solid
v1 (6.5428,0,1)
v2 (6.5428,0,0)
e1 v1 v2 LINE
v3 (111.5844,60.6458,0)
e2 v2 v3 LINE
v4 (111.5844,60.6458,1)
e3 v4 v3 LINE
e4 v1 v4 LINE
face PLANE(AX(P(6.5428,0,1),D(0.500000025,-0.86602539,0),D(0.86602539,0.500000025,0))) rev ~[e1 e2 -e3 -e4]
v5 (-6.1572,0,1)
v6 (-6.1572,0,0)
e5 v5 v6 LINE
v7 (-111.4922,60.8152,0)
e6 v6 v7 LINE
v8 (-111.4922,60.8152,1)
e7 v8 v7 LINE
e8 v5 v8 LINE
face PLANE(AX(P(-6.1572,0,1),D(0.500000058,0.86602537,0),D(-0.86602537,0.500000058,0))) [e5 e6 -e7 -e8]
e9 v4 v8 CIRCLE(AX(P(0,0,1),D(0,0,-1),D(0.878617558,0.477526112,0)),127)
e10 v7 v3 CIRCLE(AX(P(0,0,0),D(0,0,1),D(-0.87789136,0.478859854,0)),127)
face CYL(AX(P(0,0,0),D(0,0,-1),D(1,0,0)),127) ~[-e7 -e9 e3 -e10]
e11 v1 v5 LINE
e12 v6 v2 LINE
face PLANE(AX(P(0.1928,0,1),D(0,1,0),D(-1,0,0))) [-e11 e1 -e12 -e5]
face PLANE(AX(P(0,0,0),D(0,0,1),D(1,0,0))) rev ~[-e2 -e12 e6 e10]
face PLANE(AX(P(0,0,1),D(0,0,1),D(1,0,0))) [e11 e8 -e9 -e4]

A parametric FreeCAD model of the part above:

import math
import FreeCAD as App
import Part
import Sketcher
Q = App.Units.Quantity

doc = App.newDocument("Part")
body = doc.addObject("PartDesign::Body", "Body")

sketch1 = body.newObject("Sketcher::SketchObject", "Sketch")
sketch1.AttachmentSupport = (doc.getObject("XY_Plane"), [""])
sketch1.MapMode = "FlatFace"
sketch1.addGeometry(Part.Circle(App.Vector(0, 0, 0), App.Vector(0, 0, 1), 127), False)
sketch1.addConstraint([
    Sketcher.Constraint("Coincident", 0, 3, -1, 1),
    Sketcher.Constraint("Diameter", 0, Q("10 in")),
])
pad1 = body.newObject("PartDesign::Pad", "Pad")
pad1.Profile = sketch1
pad1.Length = 1

sketch2 = body.newObject("Sketcher::SketchObject", "Sketch001")
sketch2.AttachmentSupport = (doc.getObject("XY_Plane"), [""])
sketch2.MapMode = "FlatFace"
sketch2.AttachmentOffset = App.Placement(App.Vector(0, 0, 1), App.Rotation())
sketch2.addGeometry([
    Part.LineSegment(App.Vector(6.5428, 0, 0), App.Vector(111.5844, 60.6458, 0)),
    Part.ArcOfCircle(Part.Circle(App.Vector(0, 0, 0), App.Vector(0, 0, 1), 127), math.radians(28.523953), math.radians(151.389036)),
    Part.LineSegment(App.Vector(-111.4922, 60.8152, 0), App.Vector(-6.1572, 0, 0)),
    Part.LineSegment(App.Vector(-6.1572, 0, 0), App.Vector(6.5428, 0, 0)),
], False)
sketch2.addConstraint([
    Sketcher.Constraint("Coincident", 0, 2, 1, 1),
    Sketcher.Constraint("Coincident", 1, 2, 2, 1),
    Sketcher.Constraint("Coincident", 2, 2, 3, 1),
    Sketcher.Constraint("Coincident", 3, 2, 0, 1),
    Sketcher.Constraint("Horizontal", 3),
    Sketcher.Constraint("Coincident", 1, 3, -1, 1),
    Sketcher.Constraint("PointOnObject", 2, 2, -1),
    Sketcher.Constraint("DistanceX", 3, 1, 3, 2, Q("0.5 in")),
    Sketcher.Constraint("Angle", 0, Q("30 deg")),
    Sketcher.Constraint("Angle", 2, Q("-30 deg")),
    Sketcher.Constraint("Radius", 1, Q("5 in")),
    Sketcher.Constraint("Distance", 2, Q("4.7886 in")),
])
pocket1 = body.newObject("PartDesign::Pocket", "Pocket")
pocket1.Profile = sketch2
pocket1.Length = 1

doc.recompute()
